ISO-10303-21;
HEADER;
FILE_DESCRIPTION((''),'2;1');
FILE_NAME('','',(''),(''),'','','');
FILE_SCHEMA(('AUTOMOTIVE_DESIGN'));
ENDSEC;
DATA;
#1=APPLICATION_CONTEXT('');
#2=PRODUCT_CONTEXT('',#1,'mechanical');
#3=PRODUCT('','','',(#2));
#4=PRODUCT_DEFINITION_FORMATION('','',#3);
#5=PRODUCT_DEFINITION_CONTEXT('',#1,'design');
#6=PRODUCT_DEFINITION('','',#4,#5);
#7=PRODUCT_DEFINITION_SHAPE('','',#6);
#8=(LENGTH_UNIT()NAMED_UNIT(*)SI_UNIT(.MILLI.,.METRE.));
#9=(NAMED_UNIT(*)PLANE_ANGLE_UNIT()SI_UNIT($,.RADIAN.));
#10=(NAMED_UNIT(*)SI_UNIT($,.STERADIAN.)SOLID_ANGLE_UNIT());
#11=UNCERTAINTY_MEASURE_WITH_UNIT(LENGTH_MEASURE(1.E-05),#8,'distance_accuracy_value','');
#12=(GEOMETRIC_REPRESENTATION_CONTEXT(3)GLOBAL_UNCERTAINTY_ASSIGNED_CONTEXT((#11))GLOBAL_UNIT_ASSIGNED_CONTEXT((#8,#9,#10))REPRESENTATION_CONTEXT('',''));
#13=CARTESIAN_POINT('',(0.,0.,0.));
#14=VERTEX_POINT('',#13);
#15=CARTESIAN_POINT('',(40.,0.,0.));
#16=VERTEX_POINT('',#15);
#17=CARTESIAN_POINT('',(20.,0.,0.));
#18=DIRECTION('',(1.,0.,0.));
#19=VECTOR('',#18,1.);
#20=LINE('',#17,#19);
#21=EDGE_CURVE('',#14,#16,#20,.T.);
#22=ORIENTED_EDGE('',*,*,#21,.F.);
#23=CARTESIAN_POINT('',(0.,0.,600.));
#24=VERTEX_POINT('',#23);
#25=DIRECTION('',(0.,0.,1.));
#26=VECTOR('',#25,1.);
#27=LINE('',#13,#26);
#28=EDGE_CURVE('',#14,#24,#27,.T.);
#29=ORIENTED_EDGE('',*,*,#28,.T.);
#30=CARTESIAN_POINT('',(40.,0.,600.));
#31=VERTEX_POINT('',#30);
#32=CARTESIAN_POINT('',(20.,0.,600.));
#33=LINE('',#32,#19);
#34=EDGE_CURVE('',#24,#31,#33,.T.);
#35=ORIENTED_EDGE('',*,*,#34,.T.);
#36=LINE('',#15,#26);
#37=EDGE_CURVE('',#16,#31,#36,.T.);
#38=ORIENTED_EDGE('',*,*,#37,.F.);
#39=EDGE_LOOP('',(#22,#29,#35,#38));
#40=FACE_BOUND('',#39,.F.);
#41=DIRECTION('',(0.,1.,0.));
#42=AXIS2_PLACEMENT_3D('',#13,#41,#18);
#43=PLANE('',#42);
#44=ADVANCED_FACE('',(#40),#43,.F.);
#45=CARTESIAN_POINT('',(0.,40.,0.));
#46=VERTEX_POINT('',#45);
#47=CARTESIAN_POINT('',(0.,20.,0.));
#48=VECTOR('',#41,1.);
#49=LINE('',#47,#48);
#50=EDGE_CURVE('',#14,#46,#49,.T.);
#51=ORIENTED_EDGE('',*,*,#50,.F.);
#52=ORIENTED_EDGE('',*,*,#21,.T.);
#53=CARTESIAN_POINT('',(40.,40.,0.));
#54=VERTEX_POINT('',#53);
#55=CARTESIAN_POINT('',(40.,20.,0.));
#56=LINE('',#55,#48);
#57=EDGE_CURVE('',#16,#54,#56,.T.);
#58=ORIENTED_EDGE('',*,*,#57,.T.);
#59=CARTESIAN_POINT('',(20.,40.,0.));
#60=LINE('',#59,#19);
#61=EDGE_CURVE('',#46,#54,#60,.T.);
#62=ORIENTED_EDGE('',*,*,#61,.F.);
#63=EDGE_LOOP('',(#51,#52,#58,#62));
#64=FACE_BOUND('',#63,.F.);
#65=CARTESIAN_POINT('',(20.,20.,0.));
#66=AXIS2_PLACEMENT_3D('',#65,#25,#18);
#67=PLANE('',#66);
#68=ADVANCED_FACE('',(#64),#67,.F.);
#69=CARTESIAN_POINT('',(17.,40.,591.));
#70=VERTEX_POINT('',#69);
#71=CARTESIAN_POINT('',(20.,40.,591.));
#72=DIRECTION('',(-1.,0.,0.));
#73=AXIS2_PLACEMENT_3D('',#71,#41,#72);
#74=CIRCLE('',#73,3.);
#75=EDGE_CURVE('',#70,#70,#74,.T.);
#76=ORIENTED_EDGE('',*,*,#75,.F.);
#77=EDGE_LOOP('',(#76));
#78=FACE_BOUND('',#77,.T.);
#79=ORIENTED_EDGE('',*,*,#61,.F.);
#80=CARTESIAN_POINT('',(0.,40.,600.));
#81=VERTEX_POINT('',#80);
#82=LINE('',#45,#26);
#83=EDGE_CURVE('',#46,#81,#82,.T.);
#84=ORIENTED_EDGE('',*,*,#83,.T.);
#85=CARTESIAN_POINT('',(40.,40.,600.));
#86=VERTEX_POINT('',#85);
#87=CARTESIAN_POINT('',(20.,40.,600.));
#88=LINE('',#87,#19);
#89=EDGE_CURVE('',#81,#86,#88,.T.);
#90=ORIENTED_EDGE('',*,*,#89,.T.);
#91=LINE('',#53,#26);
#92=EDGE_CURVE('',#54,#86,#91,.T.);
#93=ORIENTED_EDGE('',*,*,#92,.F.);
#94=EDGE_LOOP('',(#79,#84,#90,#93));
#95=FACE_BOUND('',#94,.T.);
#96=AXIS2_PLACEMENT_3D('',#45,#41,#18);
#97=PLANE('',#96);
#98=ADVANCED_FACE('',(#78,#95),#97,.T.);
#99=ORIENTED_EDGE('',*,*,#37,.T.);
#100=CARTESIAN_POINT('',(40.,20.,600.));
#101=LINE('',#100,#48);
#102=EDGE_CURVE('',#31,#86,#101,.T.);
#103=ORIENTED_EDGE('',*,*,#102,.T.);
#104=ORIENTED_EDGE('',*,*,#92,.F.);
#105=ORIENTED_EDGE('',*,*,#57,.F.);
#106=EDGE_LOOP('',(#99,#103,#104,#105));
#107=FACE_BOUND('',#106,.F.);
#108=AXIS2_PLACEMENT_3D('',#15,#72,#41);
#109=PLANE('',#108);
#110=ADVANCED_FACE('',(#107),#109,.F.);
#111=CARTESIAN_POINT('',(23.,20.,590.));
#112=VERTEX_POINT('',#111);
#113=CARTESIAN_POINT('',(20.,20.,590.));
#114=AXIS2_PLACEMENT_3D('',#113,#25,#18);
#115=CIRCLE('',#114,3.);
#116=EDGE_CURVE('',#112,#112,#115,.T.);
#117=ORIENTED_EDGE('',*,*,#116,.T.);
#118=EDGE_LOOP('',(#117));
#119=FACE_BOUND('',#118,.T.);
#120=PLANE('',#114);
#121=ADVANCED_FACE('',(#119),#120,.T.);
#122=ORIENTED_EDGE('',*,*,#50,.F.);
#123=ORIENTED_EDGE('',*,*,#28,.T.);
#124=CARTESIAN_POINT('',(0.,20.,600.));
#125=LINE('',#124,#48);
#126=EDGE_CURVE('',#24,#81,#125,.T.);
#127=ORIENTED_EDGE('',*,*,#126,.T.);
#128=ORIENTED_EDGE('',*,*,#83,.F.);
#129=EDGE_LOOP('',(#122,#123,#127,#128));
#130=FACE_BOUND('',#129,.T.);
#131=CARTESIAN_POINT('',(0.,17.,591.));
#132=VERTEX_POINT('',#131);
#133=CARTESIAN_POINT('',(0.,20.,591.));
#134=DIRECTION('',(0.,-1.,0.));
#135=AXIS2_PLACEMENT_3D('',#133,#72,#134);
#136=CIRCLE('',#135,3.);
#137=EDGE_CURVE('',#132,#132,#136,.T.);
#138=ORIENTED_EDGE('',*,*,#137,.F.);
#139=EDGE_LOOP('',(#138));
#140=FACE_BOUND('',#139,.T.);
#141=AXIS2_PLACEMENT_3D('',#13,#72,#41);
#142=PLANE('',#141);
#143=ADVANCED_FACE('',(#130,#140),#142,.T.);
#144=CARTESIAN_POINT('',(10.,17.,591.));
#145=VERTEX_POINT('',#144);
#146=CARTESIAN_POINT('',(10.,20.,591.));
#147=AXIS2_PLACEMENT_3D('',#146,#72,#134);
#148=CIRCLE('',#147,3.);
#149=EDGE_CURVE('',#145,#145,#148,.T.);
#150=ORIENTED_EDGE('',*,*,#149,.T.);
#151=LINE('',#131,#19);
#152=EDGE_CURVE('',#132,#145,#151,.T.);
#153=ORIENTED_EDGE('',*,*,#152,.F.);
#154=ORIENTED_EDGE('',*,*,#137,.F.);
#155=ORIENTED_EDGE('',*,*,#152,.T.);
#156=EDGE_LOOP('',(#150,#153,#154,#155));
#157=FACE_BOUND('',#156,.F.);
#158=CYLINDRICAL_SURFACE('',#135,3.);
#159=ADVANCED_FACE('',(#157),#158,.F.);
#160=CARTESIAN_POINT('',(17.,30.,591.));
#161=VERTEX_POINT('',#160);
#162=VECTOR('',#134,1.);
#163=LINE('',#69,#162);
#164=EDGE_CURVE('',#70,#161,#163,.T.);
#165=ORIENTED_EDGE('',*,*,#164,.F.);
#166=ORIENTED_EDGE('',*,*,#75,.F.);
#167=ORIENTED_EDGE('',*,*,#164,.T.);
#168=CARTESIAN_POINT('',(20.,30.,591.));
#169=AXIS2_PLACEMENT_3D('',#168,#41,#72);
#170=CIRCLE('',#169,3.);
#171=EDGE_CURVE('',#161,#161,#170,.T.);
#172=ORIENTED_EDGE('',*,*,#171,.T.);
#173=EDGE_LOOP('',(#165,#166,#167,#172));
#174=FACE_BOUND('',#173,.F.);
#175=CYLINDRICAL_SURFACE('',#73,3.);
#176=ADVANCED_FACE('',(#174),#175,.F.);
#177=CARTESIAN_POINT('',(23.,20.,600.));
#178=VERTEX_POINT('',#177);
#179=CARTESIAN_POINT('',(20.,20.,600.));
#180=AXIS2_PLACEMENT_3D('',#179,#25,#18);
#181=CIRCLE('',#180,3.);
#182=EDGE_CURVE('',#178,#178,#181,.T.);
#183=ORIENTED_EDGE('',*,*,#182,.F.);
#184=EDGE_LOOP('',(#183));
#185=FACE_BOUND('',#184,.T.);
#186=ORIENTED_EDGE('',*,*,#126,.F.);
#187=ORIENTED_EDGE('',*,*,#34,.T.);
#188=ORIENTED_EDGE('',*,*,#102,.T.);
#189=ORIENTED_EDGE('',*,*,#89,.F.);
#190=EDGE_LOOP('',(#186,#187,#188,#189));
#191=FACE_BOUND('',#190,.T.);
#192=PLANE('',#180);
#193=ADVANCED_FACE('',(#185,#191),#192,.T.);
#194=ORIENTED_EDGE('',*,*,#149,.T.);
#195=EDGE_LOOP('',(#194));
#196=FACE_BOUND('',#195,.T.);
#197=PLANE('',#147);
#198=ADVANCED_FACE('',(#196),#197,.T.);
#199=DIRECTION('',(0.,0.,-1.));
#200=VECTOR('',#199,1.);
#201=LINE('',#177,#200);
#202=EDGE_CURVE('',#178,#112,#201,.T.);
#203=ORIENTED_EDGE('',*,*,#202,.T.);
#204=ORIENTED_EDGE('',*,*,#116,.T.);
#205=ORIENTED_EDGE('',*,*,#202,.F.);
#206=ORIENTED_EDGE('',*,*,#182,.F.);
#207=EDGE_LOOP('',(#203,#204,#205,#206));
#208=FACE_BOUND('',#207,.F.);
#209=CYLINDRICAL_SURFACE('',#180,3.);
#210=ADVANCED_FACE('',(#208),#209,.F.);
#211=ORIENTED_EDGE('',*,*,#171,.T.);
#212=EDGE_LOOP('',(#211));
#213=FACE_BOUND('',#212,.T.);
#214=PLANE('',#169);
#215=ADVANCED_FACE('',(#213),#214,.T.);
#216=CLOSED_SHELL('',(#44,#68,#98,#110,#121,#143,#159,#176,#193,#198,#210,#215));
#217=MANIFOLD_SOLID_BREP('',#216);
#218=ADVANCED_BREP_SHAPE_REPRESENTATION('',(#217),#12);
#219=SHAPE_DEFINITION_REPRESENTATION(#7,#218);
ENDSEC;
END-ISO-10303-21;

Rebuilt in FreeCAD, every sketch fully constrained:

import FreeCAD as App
import Part
import Sketcher

doc = App.newDocument("Part")
body = doc.addObject("PartDesign::Body", "Body")

sketch1 = body.newObject("Sketcher::SketchObject", "Sketch")
sketch1.AttachmentSupport = (doc.getObject("XY_Plane"), [""])
sketch1.MapMode = "FlatFace"
sketch1.addGeometry(Part.LineSegment(App.Vector(0, 40, 0), App.Vector(0, 0, 0)), False)
sketch1.addGeometry(Part.LineSegment(App.Vector(0, 0, 0), App.Vector(40, 0, 0)), False)
sketch1.addGeometry(Part.LineSegment(App.Vector(40, 0, 0), App.Vector(40, 40, 0)), False)
sketch1.addGeometry(Part.LineSegment(App.Vector(40, 40, 0), App.Vector(0, 40, 0)), False)
sketch1.addConstraint(Sketcher.Constraint("Coincident", 0, 2, 1, 1))
sketch1.addConstraint(Sketcher.Constraint("Coincident", 1, 2, 2, 1))
sketch1.addConstraint(Sketcher.Constraint("Coincident", 2, 2, 3, 1))
sketch1.addConstraint(Sketcher.Constraint("Coincident", 3, 2, 0, 1))
sketch1.addConstraint(Sketcher.Constraint("Vertical", 0))
sketch1.addConstraint(Sketcher.Constraint("Horizontal", 1))
sketch1.addConstraint(Sketcher.Constraint("Vertical", 2))
sketch1.addConstraint(Sketcher.Constraint("Horizontal", 3))
sketch1.addConstraint(Sketcher.Constraint("Coincident", 0, 2, -1, 1))
sketch1.addConstraint(Sketcher.Constraint("Equal", 3, 0))
sketch1.addConstraint(Sketcher.Constraint("DistanceX", 1, 1, 1, 2, 40.0))
pad1 = body.newObject("PartDesign::Pad", "Pad")
pad1.Profile = sketch1
pad1.Length = 600

sketch2 = body.newObject("Sketcher::SketchObject", "Sketch001")
sketch2.AttachmentSupport = (doc.getObject("YZ_Plane"), [""])
sketch2.MapMode = "FlatFace"
sketch2.addGeometry(Part.Circle(App.Vector(20, 591, 0), App.Vector(0, 0, 1), 3), False)
sketch2.addConstraint(Sketcher.Constraint("Diameter", 0, 6.0))
sketch2.addConstraint(Sketcher.Constraint("DistanceX", -1, 1, 0, 3, 20.0))
sketch2.addConstraint(Sketcher.Constraint("DistanceY", -1, 1, 0, 3, 591.0))
pocket1 = body.newObject("PartDesign::Pocket", "Pocket")
pocket1.Profile = sketch2
pocket1.Length = 10
pocket1.Reversed = True

sketch3 = body.newObject("Sketcher::SketchObject", "Sketch002")
sketch3.AttachmentSupport = (doc.getObject("XZ_Plane"), [""])
sketch3.MapMode = "FlatFace"
sketch3.AttachmentOffset = App.Placement(App.Vector(0, 0, -40), App.Rotation())
sketch3.addGeometry(Part.Circle(App.Vector(20, 591, 0), App.Vector(0, 0, 1), 3), False)
sketch3.addConstraint(Sketcher.Constraint("Diameter", 0, 6.0))
sketch3.addConstraint(Sketcher.Constraint("DistanceX", -1, 1, 0, 3, 20.0))
sketch3.addConstraint(Sketcher.Constraint("DistanceY", -1, 1, 0, 3, 591.0))
pocket2 = body.newObject("PartDesign::Pocket", "Pocket001")
pocket2.Profile = sketch3
pocket2.Length = 10
pocket2.Reversed = True

sketch4 = body.newObject("Sketcher::SketchObject", "Sketch003")
sketch4.AttachmentSupport = (doc.getObject("XY_Plane"), [""])
sketch4.MapMode = "FlatFace"
sketch4.AttachmentOffset = App.Placement(App.Vector(0, 0, 600), App.Rotation())
sketch4.addGeometry(Part.Circle(App.Vector(20, 20, 0), App.Vector(0, 0, 1), 3), False)
sketch4.addConstraint(Sketcher.Constraint("Diameter", 0, 6.0))
sketch4.addConstraint(Sketcher.Constraint("DistanceX", -1, 1, 0, 3, 20.0))
sketch4.addConstraint(Sketcher.Constraint("DistanceY", -1, 1, 0, 3, 20.0))
pocket3 = body.newObject("PartDesign::Pocket", "Pocket002")
pocket3.Profile = sketch4
pocket3.Length = 10

doc.recompute()
